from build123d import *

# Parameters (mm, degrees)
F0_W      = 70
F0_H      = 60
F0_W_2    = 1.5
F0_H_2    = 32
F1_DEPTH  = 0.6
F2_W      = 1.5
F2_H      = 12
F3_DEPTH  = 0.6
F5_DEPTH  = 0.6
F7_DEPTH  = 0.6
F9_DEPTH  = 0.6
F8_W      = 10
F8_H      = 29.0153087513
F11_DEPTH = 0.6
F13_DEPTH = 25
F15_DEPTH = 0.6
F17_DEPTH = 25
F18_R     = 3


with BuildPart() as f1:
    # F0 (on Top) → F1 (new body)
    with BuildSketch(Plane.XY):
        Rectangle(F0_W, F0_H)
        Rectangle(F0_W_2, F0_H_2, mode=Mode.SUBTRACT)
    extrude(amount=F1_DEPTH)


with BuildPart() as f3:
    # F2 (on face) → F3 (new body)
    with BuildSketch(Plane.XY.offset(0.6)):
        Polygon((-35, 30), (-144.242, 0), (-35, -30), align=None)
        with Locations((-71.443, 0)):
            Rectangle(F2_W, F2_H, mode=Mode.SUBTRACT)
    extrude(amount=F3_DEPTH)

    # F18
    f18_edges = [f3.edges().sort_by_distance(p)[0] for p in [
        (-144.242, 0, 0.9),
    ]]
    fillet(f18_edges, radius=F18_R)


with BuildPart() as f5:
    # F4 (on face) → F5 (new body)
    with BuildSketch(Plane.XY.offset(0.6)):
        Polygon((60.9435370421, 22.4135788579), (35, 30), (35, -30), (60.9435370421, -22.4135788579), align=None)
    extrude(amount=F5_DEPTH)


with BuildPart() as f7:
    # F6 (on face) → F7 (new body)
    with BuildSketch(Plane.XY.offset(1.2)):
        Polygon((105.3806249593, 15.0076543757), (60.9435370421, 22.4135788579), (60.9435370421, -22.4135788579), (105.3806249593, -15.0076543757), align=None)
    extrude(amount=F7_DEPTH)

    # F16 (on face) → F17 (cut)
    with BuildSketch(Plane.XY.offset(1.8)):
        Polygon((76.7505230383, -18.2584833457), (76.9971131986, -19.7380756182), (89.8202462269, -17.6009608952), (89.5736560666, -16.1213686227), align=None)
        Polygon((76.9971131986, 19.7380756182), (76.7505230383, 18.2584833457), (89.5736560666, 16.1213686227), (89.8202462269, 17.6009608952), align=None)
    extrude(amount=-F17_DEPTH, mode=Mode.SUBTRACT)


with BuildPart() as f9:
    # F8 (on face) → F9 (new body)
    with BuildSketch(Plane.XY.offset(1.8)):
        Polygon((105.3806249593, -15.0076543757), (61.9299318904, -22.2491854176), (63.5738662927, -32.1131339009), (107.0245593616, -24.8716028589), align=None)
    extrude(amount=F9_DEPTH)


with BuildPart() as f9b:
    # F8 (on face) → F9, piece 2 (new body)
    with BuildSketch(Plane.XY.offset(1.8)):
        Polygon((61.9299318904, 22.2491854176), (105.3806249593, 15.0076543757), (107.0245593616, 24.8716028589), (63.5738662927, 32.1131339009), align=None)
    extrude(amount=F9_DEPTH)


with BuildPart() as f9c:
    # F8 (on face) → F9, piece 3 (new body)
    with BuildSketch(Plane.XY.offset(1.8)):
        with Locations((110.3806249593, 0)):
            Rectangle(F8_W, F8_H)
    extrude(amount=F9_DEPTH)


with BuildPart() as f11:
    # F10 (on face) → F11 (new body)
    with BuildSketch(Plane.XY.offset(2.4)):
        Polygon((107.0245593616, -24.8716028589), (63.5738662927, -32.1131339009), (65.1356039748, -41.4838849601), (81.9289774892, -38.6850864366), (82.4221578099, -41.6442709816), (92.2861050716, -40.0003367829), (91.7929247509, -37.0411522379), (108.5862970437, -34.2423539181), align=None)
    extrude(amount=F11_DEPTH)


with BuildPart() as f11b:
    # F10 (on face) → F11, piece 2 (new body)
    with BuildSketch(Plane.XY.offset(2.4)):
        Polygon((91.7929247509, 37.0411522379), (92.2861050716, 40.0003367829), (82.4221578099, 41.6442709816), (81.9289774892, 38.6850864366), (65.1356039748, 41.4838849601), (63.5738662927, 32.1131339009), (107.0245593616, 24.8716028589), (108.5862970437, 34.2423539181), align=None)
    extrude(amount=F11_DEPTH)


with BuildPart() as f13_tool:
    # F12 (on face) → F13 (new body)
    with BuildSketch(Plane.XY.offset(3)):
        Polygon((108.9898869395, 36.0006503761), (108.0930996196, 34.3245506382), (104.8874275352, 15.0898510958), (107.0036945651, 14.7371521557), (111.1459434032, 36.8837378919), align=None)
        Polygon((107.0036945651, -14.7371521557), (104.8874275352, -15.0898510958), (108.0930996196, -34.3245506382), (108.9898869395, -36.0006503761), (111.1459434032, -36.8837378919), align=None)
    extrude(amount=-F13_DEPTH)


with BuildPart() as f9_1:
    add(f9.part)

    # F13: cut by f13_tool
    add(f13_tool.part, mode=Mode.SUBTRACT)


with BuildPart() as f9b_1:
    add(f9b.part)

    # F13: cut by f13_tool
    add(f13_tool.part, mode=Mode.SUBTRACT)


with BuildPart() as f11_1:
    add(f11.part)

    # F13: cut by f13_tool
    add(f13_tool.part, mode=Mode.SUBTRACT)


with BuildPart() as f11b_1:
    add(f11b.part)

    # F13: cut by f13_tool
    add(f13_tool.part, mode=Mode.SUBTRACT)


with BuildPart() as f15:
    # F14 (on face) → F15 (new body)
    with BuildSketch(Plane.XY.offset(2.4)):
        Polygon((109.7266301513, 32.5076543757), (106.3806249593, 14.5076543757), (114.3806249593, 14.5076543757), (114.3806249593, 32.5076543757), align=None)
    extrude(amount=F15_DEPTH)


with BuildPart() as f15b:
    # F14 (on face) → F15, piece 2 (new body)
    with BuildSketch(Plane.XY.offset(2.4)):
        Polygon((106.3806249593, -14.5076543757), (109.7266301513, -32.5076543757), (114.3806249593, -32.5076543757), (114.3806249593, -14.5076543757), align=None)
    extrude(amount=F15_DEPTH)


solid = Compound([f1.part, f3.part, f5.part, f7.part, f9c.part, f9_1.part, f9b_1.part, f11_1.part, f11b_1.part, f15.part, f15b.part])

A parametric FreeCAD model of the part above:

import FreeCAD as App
import Part
import Sketcher

V = App.Vector
Q = App.Units.Quantity


def edges_at(feature, points):
    """Names of the edges that pass closest to the given points."""
    edges = feature.Shape.Edges
    near = lambda p: min(range(len(edges)), key=lambda i: edges[i].distToShape(Part.Vertex(*p))[0])
    return sorted({f"Edge{near(p) + 1}" for p in points})

doc = App.newDocument("Part")
params = doc.addObject("Spreadsheet::Sheet", "Params")
for row, (alias, value) in enumerate([
    ("sketch1_width", "70 mm"),
    ("sketch1_height", "60 mm"),
    ("sketch1_height2", "32 mm"),
    ("sketch1_width2", "1.5 mm"),
    ("pad1_length", "0.6 mm"),
    ("sketch2_height", "60 mm"),
    ("sketch2_height2", "12 mm"),
    ("sketch2_width", "1.5 mm"),
    ("pad2_length", "0.6 mm"),
    ("fillet_radius", "3 mm"),
    ("sketch3_height", "60 mm"),
    ("sketch3_length", "27.03 mm"),
    ("pad3_length", "0.6 mm"),
    ("sketch4_length", "45.05 mm"),
    ("pad4_length", "0.6 mm"),
    ("sketch5_length", "13 mm"),
    ("sketch5_length2", "1.5 mm"),
    ("pocket1_length", "25 mm"),
    ("sketch6_length", "10 mm"),
    ("sketch6_length2", "44.05 mm"),
    ("pad5_length", "0.6 mm"),
    ("sketch7_length", "10 mm"),
    ("sketch7_length2", "44.05 mm"),
    ("pad6_length", "0.6 mm"),
    ("sketch8_width", "10 mm"),
    ("pad7_length", "0.6 mm"),
    ("sketch9_length", "3 mm"),
    ("sketch9_length2", "9.999999 mm"),
    ("sketch9_length3", "9.5 mm"),
    ("sketch9_length4", "44.05 mm"),
    ("pad8_length", "0.6 mm"),
    ("sketch10_length", "3 mm"),
    ("sketch10_length2", "9.999999 mm"),
    ("sketch10_length3", "9.5 mm"),
    ("sketch10_length4", "44.05 mm"),
    ("pad9_length", "0.6 mm"),
    ("sketch11_length", "19.5 mm"),
    ("pad10_length", "25 mm"),
    ("sketch12_width", "8 mm"),
    ("sketch12_height", "18 mm"),
    ("pad11_length", "0.6 mm"),
    ("sketch13_width", "8 mm"),
    ("sketch13_height", "18 mm"),
    ("pad12_length", "0.6 mm"),
], start=1):
    params.set(f"A{row}", alias)
    params.set(f"B{row}", "=" + value)
    params.setAlias(f"B{row}", alias)

body = doc.addObject("PartDesign::Body", "Body")

# Sketch on XY plane
sketch1 = body.newObject("Sketcher::SketchObject", "Sketch")
sketch1.AttachmentSupport = (doc.getObject("XY_Plane"), [""])
sketch1.MapMode = "FlatFace"
sketch1.addGeometry(Part.LineSegment(V(-35, 30, 0), V(-35, -30, 0)), False)
sketch1.addGeometry(Part.LineSegment(V(-35, -30, 0), V(35, -30, 0)), False)
sketch1.addGeometry(Part.LineSegment(V(35, -30, 0), V(35, 30, 0)), False)
sketch1.addGeometry(Part.LineSegment(V(35, 30, 0), V(-35, 30, 0)), False)
sketch1.addGeometry(Part.LineSegment(V(0.75, -16, 0), V(-0.75, -16, 0)), False)
sketch1.addGeometry(Part.LineSegment(V(-0.75, -16, 0), V(-0.75, 16, 0)), False)
sketch1.addGeometry(Part.LineSegment(V(-0.75, 16, 0), V(0.75, 16, 0)), False)
sketch1.addGeometry(Part.LineSegment(V(0.75, 16, 0), V(0.75, -16, 0)), False)
sketch1.addConstraint(Sketcher.Constraint("Coincident", 0, 2, 1, 1))
sketch1.addConstraint(Sketcher.Constraint("Coincident", 1, 2, 2, 1))
sketch1.addConstraint(Sketcher.Constraint("Coincident", 2, 2, 3, 1))
sketch1.addConstraint(Sketcher.Constraint("Coincident", 3, 2, 0, 1))
sketch1.addConstraint(Sketcher.Constraint("Coincident", 4, 2, 5, 1))
sketch1.addConstraint(Sketcher.Constraint("Coincident", 5, 2, 6, 1))
sketch1.addConstraint(Sketcher.Constraint("Coincident", 6, 2, 7, 1))
sketch1.addConstraint(Sketcher.Constraint("Coincident", 7, 2, 4, 1))
sketch1.addConstraint(Sketcher.Constraint("Vertical", 0))
sketch1.addConstraint(Sketcher.Constraint("Horizontal", 1))
sketch1.addConstraint(Sketcher.Constraint("Vertical", 2))
sketch1.addConstraint(Sketcher.Constraint("Horizontal", 3))
sketch1.addConstraint(Sketcher.Constraint("Horizontal", 4))
sketch1.addConstraint(Sketcher.Constraint("Vertical", 5))
sketch1.addConstraint(Sketcher.Constraint("Horizontal", 6))
sketch1.addConstraint(Sketcher.Constraint("Vertical", 7))
sketch1.addConstraint(Sketcher.Constraint("Symmetric", 0, 2, 2, 2, -1, 1))
sketch1.addConstraint(Sketcher.Constraint("Symmetric", 4, 2, 6, 2, -1, 1))
sketch1.addConstraint(Sketcher.Constraint("DistanceX", 1, 1, 1, 2, Q("70 mm")))
sketch1.addConstraint(Sketcher.Constraint("DistanceY", 0, 2, 0, 1, Q("60 mm")))
sketch1.addConstraint(Sketcher.Constraint("DistanceY", 5, 1, 5, 2, Q("32 mm")))
sketch1.addConstraint(Sketcher.Constraint("DistanceX", 4, 2, 4, 1, Q("1.5 mm")))
sketch1.setExpression("Constraints[18]", "Params.sketch1_width")
sketch1.setExpression("Constraints[19]", "Params.sketch1_height")
sketch1.setExpression("Constraints[20]", "Params.sketch1_height2")
sketch1.setExpression("Constraints[21]", "Params.sketch1_width2")
pad1 = body.newObject("PartDesign::Pad", "Pad")
pad1.Profile = sketch1
pad1.setExpression("Length", "Params.pad1_length")
body2 = doc.addObject("PartDesign::Body", "Body001")

# Sketch on XY plane
sketch2 = body2.newObject("Sketcher::SketchObject", "Sketch001")
sketch2.AttachmentSupport = (doc.getObject("XY_Plane001"), [""])
sketch2.MapMode = "FlatFace"
sketch2.AttachmentOffset = App.Placement(V(0, 0, 0.6), App.Rotation())
sketch2.addGeometry(Part.LineSegment(V(-35, 30, 0), V(-144.242, 0, 0)), False)
sketch2.addGeometry(Part.LineSegment(V(-144.242, 0, 0), V(-35, -30, 0)), False)
sketch2.addGeometry(Part.LineSegment(V(-35, -30, 0), V(-35, 30, 0)), False)
sketch2.addGeometry(Part.LineSegment(V(-70.693, -6, 0), V(-72.193, -6, 0)), False)
sketch2.addGeometry(Part.LineSegment(V(-72.193, -6, 0), V(-72.193, 6, 0)), False)
sketch2.addGeometry(Part.LineSegment(V(-72.193, 6, 0), V(-70.693, 6, 0)), False)
sketch2.addGeometry(Part.LineSegment(V(-70.693, 6, 0), V(-70.693, -6, 0)), False)
sketch2.addConstraint(Sketcher.Constraint("Coincident", 0, 2, 1, 1))
sketch2.addConstraint(Sketcher.Constraint("Coincident", 1, 2, 2, 1))
sketch2.addConstraint(Sketcher.Constraint("Coincident", 2, 2, 0, 1))
sketch2.addConstraint(Sketcher.Constraint("Coincident", 3, 2, 4, 1))
sketch2.addConstraint(Sketcher.Constraint("Coincident", 4, 2, 5, 1))
sketch2.addConstraint(Sketcher.Constraint("Coincident", 5, 2, 6, 1))
sketch2.addConstraint(Sketcher.Constraint("Coincident", 6, 2, 3, 1))
sketch2.addConstraint(Sketcher.Constraint("Vertical", 2))
sketch2.addConstraint(Sketcher.Constraint("Horizontal", 3))
sketch2.addConstraint(Sketcher.Constraint("Vertical", 4))
sketch2.addConstraint(Sketcher.Constraint("Horizontal", 5))
sketch2.addConstraint(Sketcher.Constraint("Vertical", 6))
sketch2.addConstraint(Sketcher.Constraint("PointOnObject", 0, 2, -1))
sketch2.addConstraint(Sketcher.Constraint("Equal", 0, 1))
sketch2.addConstraint(Sketcher.Constraint("DistanceY", 2, 1, 2, 2, Q("60 mm")))
sketch2.addConstraint(Sketcher.Constraint("DistanceY", 4, 1, 4, 2, Q("12 mm")))
sketch2.addConstraint(Sketcher.Constraint("DistanceX", 3, 2, 3, 1, Q("1.5 mm")))
sketch2.addConstraint(Sketcher.Constraint("DistanceX", 1, 2, -1, 1, Q("35 mm")))
sketch2.addConstraint(Sketcher.Constraint("DistanceY", 3, 2, -1, 1, Q("6 mm")))
sketch2.addConstraint(Sketcher.Constraint("DistanceX", 0, 2, -1, 1, Q("144.242 mm")))
sketch2.addConstraint(Sketcher.Constraint("DistanceX", 3, 2, -1, 1, Q("72.193 mm")))
sketch2.setExpression("Constraints[14]", "Params.sketch2_height")
sketch2.setExpression("Constraints[15]", "Params.sketch2_height2")
sketch2.setExpression("Constraints[16]", "Params.sketch2_width")
pad2 = body2.newObject("PartDesign::Pad", "Pad001")
pad2.Profile = sketch2
pad2.setExpression("Length", "Params.pad2_length")
doc.recompute()

fillet = body2.newObject("PartDesign::Fillet", "Fillet")
fillet.Base = (pad2, edges_at(pad2, [(-144.242, 0, 0.9)]))
fillet.setExpression("Radius", "Params.fillet_radius")
body3 = doc.addObject("PartDesign::Body", "Body002")

# Sketch on XY plane
sketch3 = body3.newObject("Sketcher::SketchObject", "Sketch002")
sketch3.AttachmentSupport = (doc.getObject("XY_Plane002"), [""])
sketch3.MapMode = "FlatFace"
sketch3.AttachmentOffset = App.Placement(V(0, 0, 0.6), App.Rotation())
sketch3.addGeometry(Part.LineSegment(V(60.943537, 22.413579, 0), V(35, 30, 0)), False)
sketch3.addGeometry(Part.LineSegment(V(35, 30, 0), V(35, -30, 0)), False)
sketch3.addGeometry(Part.LineSegment(V(35, -30, 0), V(60.943537, -22.413579, 0)), False)
sketch3.addGeometry(Part.LineSegment(V(60.943537, -22.413579, 0), V(60.943537, 22.413579, 0)), False)
sketch3.addConstraint(Sketcher.Constraint("Coincident", 0, 2, 1, 1))
sketch3.addConstraint(Sketcher.Constraint("Coincident", 1, 2, 2, 1))
sketch3.addConstraint(Sketcher.Constraint("Coincident", 2, 2, 3, 1))
sketch3.addConstraint(Sketcher.Constraint("Coincident", 3, 2, 0, 1))
sketch3.addConstraint(Sketcher.Constraint("Vertical", 1))
sketch3.addConstraint(Sketcher.Constraint("Vertical", 3))
sketch3.addConstraint(Sketcher.Constraint("Equal", 0, 2))
sketch3.addConstraint(Sketcher.Constraint("DistanceY", 1, 2, 1, 1, Q("60 mm")))
sketch3.addConstraint(Sketcher.Constraint("DistanceX", -1, 1, 0, 2, Q("35 mm")))
sketch3.addConstraint(Sketcher.Constraint("DistanceY", -1, 1, 0, 2, Q("30 mm")))
sketch3.addConstraint(Sketcher.Constraint("Angle", 0, Q("163.7 deg")))
sketch3.addConstraint(Sketcher.Constraint("Distance", 0, Q("27.03 mm")))
sketch3.setExpression("Constraints[7]", "Params.sketch3_height")
sketch3.setExpression("Constraints[11]", "Params.sketch3_length")
pad3 = body3.newObject("PartDesign::Pad", "Pad002")
pad3.Profile = sketch3
pad3.setExpression("Length", "Params.pad3_length")
body4 = doc.addObject("PartDesign::Body", "Body003")

# Sketch on XY plane
sketch4 = body4.newObject("Sketcher::SketchObject", "Sketch003")
sketch4.AttachmentSupport = (doc.getObject("XY_Plane003"), [""])
sketch4.MapMode = "FlatFace"
sketch4.AttachmentOffset = App.Placement(V(0, 0, 1.2), App.Rotation())
sketch4.addGeometry(Part.LineSegment(V(105.380625, 15.007654, 0), V(60.943537, 22.413579, 0)), False)
sketch4.addGeometry(Part.LineSegment(V(60.943537, 22.413579, 0), V(60.943537, -22.413579, 0)), False)
sketch4.addGeometry(Part.LineSegment(V(60.943537, -22.413579, 0), V(105.380625, -15.007654, 0)), False)
sketch4.addGeometry(Part.LineSegment(V(105.380625, -15.007654, 0), V(105.380625, 15.007654, 0)), False)
sketch4.addConstraint(Sketcher.Constraint("Coincident", 0, 2, 1, 1))
sketch4.addConstraint(Sketcher.Constraint("Coincident", 1, 2, 2, 1))
sketch4.addConstraint(Sketcher.Constraint("Coincident", 2, 2, 3, 1))
sketch4.addConstraint(Sketcher.Constraint("Coincident", 3, 2, 0, 1))
sketch4.addConstraint(Sketcher.Constraint("Vertical", 1))
sketch4.addConstraint(Sketcher.Constraint("Vertical", 3))
sketch4.addConstraint(Sketcher.Constraint("Equal", 0, 2))
sketch4.addConstraint(Sketcher.Constraint("Distance", 0, Q("45.05 mm")))
sketch4.addConstraint(Sketcher.Constraint("DistanceY", 3, 1, 3, 2, Q("30.015309 mm")))
sketch4.addConstraint(Sketcher.Constraint("DistanceY", 1, 2, 1, 1, Q("44.827158 mm")))
sketch4.addConstraint(Sketcher.Constraint("DistanceY", -1, 1, 0, 2, Q("22.413579 mm")))
sketch4.addConstraint(Sketcher.Constraint("DistanceX", -1, 1, 0, 2, Q("60.943537 mm")))
sketch4.setExpression("Constraints[7]", "Params.sketch4_length")
pad4 = body4.newObject("PartDesign::Pad", "Pad003")
pad4.Profile = sketch4
pad4.setExpression("Length", "Params.pad4_length")

# Sketch on XY plane
sketch5 = body4.newObject("Sketcher::SketchObject", "Sketch004")
sketch5.AttachmentSupport = (doc.getObject("XY_Plane003"), [""])
sketch5.MapMode = "FlatFace"
sketch5.AttachmentOffset = App.Placement(V(0, 0, 1.8), App.Rotation())
sketch5.addGeometry(Part.LineSegment(V(76.750523, -18.258483, 0), V(76.997113, -19.738076, 0)), False)
sketch5.addGeometry(Part.LineSegment(V(76.997113, -19.738076, 0), V(89.820246, -17.600961, 0)), False)
sketch5.addGeometry(Part.LineSegment(V(89.820246, -17.600961, 0), V(89.573656, -16.121369, 0)), False)
sketch5.addGeometry(Part.LineSegment(V(89.573656, -16.121369, 0), V(76.750523, -18.258483, 0)), False)
sketch5.addGeometry(Part.LineSegment(V(76.997113, 19.738076, 0), V(76.750523, 18.258483, 0)), False)
sketch5.addGeometry(Part.LineSegment(V(76.750523, 18.258483, 0), V(89.573656, 16.121369, 0)), False)
sketch5.addGeometry(Part.LineSegment(V(89.573656, 16.121369, 0), V(89.820246, 17.600961, 0)), False)
sketch5.addGeometry(Part.LineSegment(V(89.820246, 17.600961, 0), V(76.997113, 19.738076, 0)), False)
sketch5.addConstraint(Sketcher.Constraint("Coincident", 0, 2, 1, 1))
sketch5.addConstraint(Sketcher.Constraint("Coincident", 1, 2, 2, 1))
sketch5.addConstraint(Sketcher.Constraint("Coincident", 2, 2, 3, 1))
sketch5.addConstraint(Sketcher.Constraint("Coincident", 3, 2, 0, 1))
sketch5.addConstraint(Sketcher.Constraint("Coincident", 4, 2, 5, 1))
sketch5.addConstraint(Sketcher.Constraint("Coincident", 5, 2, 6, 1))
sketch5.addConstraint(Sketcher.Constraint("Coincident", 6, 2, 7, 1))
sketch5.addConstraint(Sketcher.Constraint("Coincident", 7, 2, 4, 1))
sketch5.addConstraint(Sketcher.Constraint("Symmetric", 3, 2, 4, 2, -1))
sketch5.addConstraint(Sketcher.Constraint("Symmetric", 2, 2, 5, 2, -1))
sketch5.addConstraint(Sketcher.Constraint("Symmetric", 1, 2, 6, 2, -1))
sketch5.addConstraint(Sketcher.Constraint("Symmetric", 0, 2, 7, 2, -1))
sketch5.addConstraint(Sketcher.Constraint("Perpendicular", 0, 1))
sketch5.addConstraint(Sketcher.Constraint("Perpendicular", 1, 2))
sketch5.addConstraint(Sketcher.Constraint("Perpendicular", 2, 3))
sketch5.addConstraint(Sketcher.Constraint("Distance", 1, Q("13 mm")))
sketch5.addConstraint(Sketcher.Constraint("Distance", 0, Q("1.5 mm")))
sketch5.addConstraint(Sketcher.Constraint("DistanceY", 1, 2, -1, 1, Q("17.600961 mm")))
sketch5.addConstraint(Sketcher.Constraint("DistanceY", 2, 2, -1, 1, Q("16.121369 mm")))
sketch5.addConstraint(Sketcher.Constraint("DistanceX", -1, 1, 0, 2, Q("76.997113 mm")))
sketch5.setExpression("Constraints[15]", "Params.sketch5_length")
sketch5.setExpression("Constraints[16]", "Params.sketch5_length2")
pocket1 = body4.newObject("PartDesign::Pocket", "Pocket")
pocket1.Profile = sketch5
pocket1.setExpression("Length", "Params.pocket1_length")
body5 = doc.addObject("PartDesign::Body", "Body004")

# Sketch on XY plane
sketch6 = body5.newObject("Sketcher::SketchObject", "Sketch005")
sketch6.AttachmentSupport = (doc.getObject("XY_Plane004"), [""])
sketch6.MapMode = "FlatFace"
sketch6.AttachmentOffset = App.Placement(V(0, 0, 1.8), App.Rotation())
sketch6.addGeometry(Part.LineSegment(V(105.380625, -15.007654, 0), V(61.929932, -22.249185, 0)), False)
sketch6.addGeometry(Part.LineSegment(V(61.929932, -22.249185, 0), V(63.573866, -32.113134, 0)), False)
sketch6.addGeometry(Part.LineSegment(V(63.573866, -32.113134, 0), V(107.024559, -24.871603, 0)), False)
sketch6.addGeometry(Part.LineSegment(V(107.024559, -24.871603, 0), V(105.380625, -15.007654, 0)), False)
sketch6.addConstraint(Sketcher.Constraint("Coincident", 0, 2, 1, 1))
sketch6.addConstraint(Sketcher.Constraint("Coincident", 1, 2, 2, 1))
sketch6.addConstraint(Sketcher.Constraint("Coincident", 2, 2, 3, 1))
sketch6.addConstraint(Sketcher.Constraint("Coincident", 3, 2, 0, 1))
sketch6.addConstraint(Sketcher.Constraint("Perpendicular", 0, 1))
sketch6.addConstraint(Sketcher.Constraint("Perpendicular", 1, 2))
sketch6.addConstraint(Sketcher.Constraint("Perpendicular", 2, 3))
sketch6.addConstraint(Sketcher.Constraint("Distance", 1, Q("10 mm")))
sketch6.addConstraint(Sketcher.Constraint("Distance", 0, Q("44.05 mm")))
sketch6.addConstraint(Sketcher.Constraint("DistanceX", -1, 1, 0, 2, Q("61.929932 mm")))
sketch6.addConstraint(Sketcher.Constraint("DistanceX", -1, 1, 2, 2, Q("107.024559 mm")))
sketch6.addConstraint(Sketcher.Constraint("DistanceY", 0, 2, -1, 1, Q("22.249185 mm")))
sketch6.setExpression("Constraints[7]", "Params.sketch6_length")
sketch6.setExpression("Constraints[8]", "Params.sketch6_length2")
pad5 = body5.newObject("PartDesign::Pad", "Pad004")
pad5.Profile = sketch6
pad5.setExpression("Length", "Params.pad5_length")
body6 = doc.addObject("PartDesign::Body", "Body005")

# Sketch on XY plane
sketch7 = body6.newObject("Sketcher::SketchObject", "Sketch006")
sketch7.AttachmentSupport = (doc.getObject("XY_Plane005"), [""])
sketch7.MapMode = "FlatFace"
sketch7.AttachmentOffset = App.Placement(V(0, 0, 1.8), App.Rotation())
sketch7.addGeometry(Part.LineSegment(V(61.929932, 22.249185, 0), V(105.380625, 15.007654, 0)), False)
sketch7.addGeometry(Part.LineSegment(V(105.380625, 15.007654, 0), V(107.024559, 24.871603, 0)), False)
sketch7.addGeometry(Part.LineSegment(V(107.024559, 24.871603, 0), V(63.573866, 32.113134, 0)), False)
sketch7.addGeometry(Part.LineSegment(V(63.573866, 32.113134, 0), V(61.929932, 22.249185, 0)), False)
sketch7.addConstraint(Sketcher.Constraint("Coincident", 0, 2, 1, 1))
sketch7.addConstraint(Sketcher.Constraint("Coincident", 1, 2, 2, 1))
sketch7.addConstraint(Sketcher.Constraint("Coincident", 2, 2, 3, 1))
sketch7.addConstraint(Sketcher.Constraint("Coincident", 3, 2, 0, 1))
sketch7.addConstraint(Sketcher.Constraint("Perpendicular", 0, 1))
sketch7.addConstraint(Sketcher.Constraint("Perpendicular", 1, 2))
sketch7.addConstraint(Sketcher.Constraint("Perpendicular", 2, 3))
sketch7.addConstraint(Sketcher.Constraint("Distance", 1, Q("10 mm")))
sketch7.addConstraint(Sketcher.Constraint("Distance", 0, Q("44.05 mm")))
sketch7.addConstraint(Sketcher.Constraint("DistanceX", -1, 1, 1, 2, Q("107.024559 mm")))
sketch7.addConstraint(Sketcher.Constraint("DistanceX", -1, 1, 3, 2, Q("61.929932 mm")))
sketch7.addConstraint(Sketcher.Constraint("DistanceY", -1, 1, 0, 2, Q("15.007654 mm")))
sketch7.setExpression("Constraints[7]", "Params.sketch7_length")
sketch7.setExpression("Constraints[8]", "Params.sketch7_length2")
pad6 = body6.newObject("PartDesign::Pad", "Pad005")
pad6.Profile = sketch7
pad6.setExpression("Length", "Params.pad6_length")
body7 = doc.addObject("PartDesign::Body", "Body006")

# Sketch on XY plane
sketch8 = body7.newObject("Sketcher::SketchObject", "Sketch007")
sketch8.AttachmentSupport = (doc.getObject("XY_Plane006"), [""])
sketch8.MapMode = "FlatFace"
sketch8.AttachmentOffset = App.Placement(V(0, 0, 1.8), App.Rotation())
sketch8.addGeometry(Part.LineSegment(V(105.380625, 14.507654, 0), V(105.380625, -14.507654, 0)), False)
sketch8.addGeometry(Part.LineSegment(V(105.380625, -14.507654, 0), V(115.380625, -14.507654, 0)), False)
sketch8.addGeometry(Part.LineSegment(V(115.380625, -14.507654, 0), V(115.380625, 14.507654, 0)), False)
sketch8.addGeometry(Part.LineSegment(V(115.380625, 14.507654, 0), V(105.380625, 14.507654, 0)), False)
sketch8.addConstraint(Sketcher.Constraint("Coincident", 0, 2, 1, 1))
sketch8.addConstraint(Sketcher.Constraint("Coincident", 1, 2, 2, 1))
sketch8.addConstraint(Sketcher.Constraint("Coincident", 2, 2, 3, 1))
sketch8.addConstraint(Sketcher.Constraint("Coincident", 3, 2, 0, 1))
sketch8.addConstraint(Sketcher.Constraint("Vertical", 0))
sketch8.addConstraint(Sketcher.Constraint("Horizontal", 1))
sketch8.addConstraint(Sketcher.Constraint("Vertical", 2))
sketch8.addConstraint(Sketcher.Constraint("Horizontal", 3))
sketch8.addConstraint(Sketcher.Constraint("DistanceX", 1, 1, 1, 2, Q("10 mm")))
sketch8.addConstraint(Sketcher.Constraint("DistanceY", 0, 2, 0, 1, Q("29.015309 mm")))
sketch8.addConstraint(Sketcher.Constraint("DistanceX", -1, 1, 0, 2, Q("105.380625 mm")))
sketch8.addConstraint(Sketcher.Constraint("DistanceY", 0, 2, -1, 1, Q("14.507654 mm")))
sketch8.setExpression("Constraints[8]", "Params.sketch8_width")
pad7 = body7.newObject("PartDesign::Pad", "Pad006")
pad7.Profile = sketch8
pad7.setExpression("Length", "Params.pad7_length")
body8 = doc.addObject("PartDesign::Body", "Body007")

# Sketch on XY plane
sketch9 = body8.newObject("Sketcher::SketchObject", "Sketch008")
sketch9.AttachmentSupport = (doc.getObject("XY_Plane007"), [""])
sketch9.MapMode = "FlatFace"
sketch9.AttachmentOffset = App.Placement(V(0, 0, 2.4), App.Rotation())
sketch9.addGeometry(Part.LineSegment(V(107.024559, -24.871603, 0), V(63.573866, -32.113134, 0)), False)
sketch9.addGeometry(Part.LineSegment(V(63.573866, -32.113134, 0), V(65.135604, -41.483885, 0)), False)
sketch9.addGeometry(Part.LineSegment(V(65.135604, -41.483885, 0), V(81.928977, -38.685086, 0)), False)
sketch9.addGeometry(Part.LineSegment(V(81.928977, -38.685086, 0), V(82.422158, -41.644271, 0)), False)
sketch9.addGeometry(Part.LineSegment(V(82.422158, -41.644271, 0), V(92.286105, -40.000337, 0)), False)
sketch9.addGeometry(Part.LineSegment(V(92.286105, -40.000337, 0), V(91.792925, -37.041152, 0)), False)
sketch9.addGeometry(Part.LineSegment(V(91.792925, -37.041152, 0), V(108.586297, -34.242354, 0)), False)
sketch9.addGeometry(Part.LineSegment(V(108.586297, -34.242354, 0), V(107.024559, -24.871603, 0)), False)
sketch9.addConstraint(Sketcher.Constraint("Coincident", 0, 2, 1, 1))
sketch9.addConstraint(Sketcher.Constraint("Coincident", 1, 2, 2, 1))
sketch9.addConstraint(Sketcher.Constraint("Coincident", 2, 2, 3, 1))
sketch9.addConstraint(Sketcher.Constraint("Coincident", 3, 2, 4, 1))
sketch9.addConstraint(Sketcher.Constraint("Coincident", 4, 2, 5, 1))
sketch9.addConstraint(Sketcher.Constraint("Coincident", 5, 2, 6, 1))
sketch9.addConstraint(Sketcher.Constraint("Coincident", 6, 2, 7, 1))
sketch9.addConstraint(Sketcher.Constraint("Coincident", 7, 2, 0, 1))
sketch9.addConstraint(Sketcher.Constraint("Perpendicular", 0, 1))
sketch9.addConstraint(Sketcher.Constraint("Perpendicular", 1, 2))
sketch9.addConstraint(Sketcher.Constraint("Perpendicular", 2, 3))
sketch9.addConstraint(Sketcher.Constraint("Perpendicular", 3, 4))
sketch9.addConstraint(Sketcher.Constraint("Perpendicular", 4, 5))
sketch9.addConstraint(Sketcher.Constraint("Perpendicular", 5, 6))
sketch9.addConstraint(Sketcher.Constraint("Perpendicular", 6, 7))
sketch9.addConstraint(Sketcher.Constraint("Equal", 3, 5))
sketch9.addConstraint(Sketcher.Constraint("Equal", 2, 6))
sketch9.addConstraint(Sketcher.Constraint("Distance", 3, Q("3 mm")))
sketch9.addConstraint(Sketcher.Constraint("Distance", 4, Q("9.999999 mm")))
sketch9.addConstraint(Sketcher.Constraint("Distance", 1, Q("9.5 mm")))
sketch9.addConstraint(Sketcher.Constraint("Distance", 0, Q("44.05 mm")))
sketch9.addConstraint(Sketcher.Constraint("DistanceY", 1, 2, 2, 2, Q("2.798799 mm")))
sketch9.addConstraint(Sketcher.Constraint("DistanceY", 3, 2, -1, 1, Q("41.644271 mm")))
sketch9.addConstraint(Sketcher.Constraint("DistanceX", -1, 1, 7, 2, Q("107.024559 mm")))
sketch9.setExpression("Constraints[17]", "Params.sketch9_length")
sketch9.setExpression("Constraints[18]", "Params.sketch9_length2")
sketch9.setExpression("Constraints[19]", "Params.sketch9_length3")
sketch9.setExpression("Constraints[20]", "Params.sketch9_length4")
pad8 = body8.newObject("PartDesign::Pad", "Pad007")
pad8.Profile = sketch9
pad8.setExpression("Length", "Params.pad8_length")
body9 = doc.addObject("PartDesign::Body", "Body008")

# Sketch on XY plane
sketch10 = body9.newObject("Sketcher::SketchObject", "Sketch009")
sketch10.AttachmentSupport = (doc.getObject("XY_Plane008"), [""])
sketch10.MapMode = "FlatFace"
sketch10.AttachmentOffset = App.Placement(V(0, 0, 2.4), App.Rotation())
sketch10.addGeometry(Part.LineSegment(V(91.792925, 37.041152, 0), V(92.286105, 40.000337, 0)), False)
sketch10.addGeometry(Part.LineSegment(V(92.286105, 40.000337, 0), V(82.422158, 41.644271, 0)), False)
sketch10.addGeometry(Part.LineSegment(V(82.422158, 41.644271, 0), V(81.928977, 38.685086, 0)), False)
sketch10.addGeometry(Part.LineSegment(V(81.928977, 38.685086, 0), V(65.135604, 41.483885, 0)), False)
sketch10.addGeometry(Part.LineSegment(V(65.135604, 41.483885, 0), V(63.573866, 32.113134, 0)), False)
sketch10.addGeometry(Part.LineSegment(V(63.573866, 32.113134, 0), V(107.024559, 24.871603, 0)), False)
sketch10.addGeometry(Part.LineSegment(V(107.024559, 24.871603, 0), V(108.586297, 34.242354, 0)), False)
sketch10.addGeometry(Part.LineSegment(V(108.586297, 34.242354, 0), V(91.792925, 37.041152, 0)), False)
sketch10.addConstraint(Sketcher.Constraint("Coincident", 0, 2, 1, 1))
sketch10.addConstraint(Sketcher.Constraint("Coincident", 1, 2, 2, 1))
sketch10.addConstraint(Sketcher.Constraint("Coincident", 2, 2, 3, 1))
sketch10.addConstraint(Sketcher.Constraint("Coincident", 3, 2, 4, 1))
sketch10.addConstraint(Sketcher.Constraint("Coincident", 4, 2, 5, 1))
sketch10.addConstraint(Sketcher.Constraint("Coincident", 5, 2, 6, 1))
sketch10.addConstraint(Sketcher.Constraint("Coincident", 6, 2, 7, 1))
sketch10.addConstraint(Sketcher.Constraint("Coincident", 7, 2, 0, 1))
sketch10.addConstraint(Sketcher.Constraint("Perpendicular", 0, 1))
sketch10.addConstraint(Sketcher.Constraint("Perpendicular", 1, 2))
sketch10.addConstraint(Sketcher.Constraint("Perpendicular", 2, 3))
sketch10.addConstraint(Sketcher.Constraint("Perpendicular", 3, 4))
sketch10.addConstraint(Sketcher.Constraint("Perpendicular", 4, 5))
sketch10.addConstraint(Sketcher.Constraint("Perpendicular", 5, 6))
sketch10.addConstraint(Sketcher.Constraint("Perpendicular", 6, 7))
sketch10.addConstraint(Sketcher.Constraint("Equal", 0, 2))
sketch10.addConstraint(Sketcher.Constraint("Equal", 3, 7))
sketch10.addConstraint(Sketcher.Constraint("Distance", 0, Q("3 mm")))
sketch10.addConstraint(Sketcher.Constraint("Distance", 1, Q("9.999999 mm")))
sketch10.addConstraint(Sketcher.Constraint("Distance", 4, Q("9.5 mm")))
sketch10.addConstraint(Sketcher.Constraint("Distance", 5, Q("44.05 mm")))
sketch10.addConstraint(Sketcher.Constraint("DistanceY", 2, 2, 3, 2, Q("2.798799 mm")))
sketch10.addConstraint(Sketcher.Constraint("DistanceY", -1, 1, 1, 2, Q("41.644271 mm")))
sketch10.addConstraint(Sketcher.Constraint("DistanceX", -1, 1, 5, 2, Q("107.024559 mm")))
sketch10.setExpression("Constraints[17]", "Params.sketch10_length")
sketch10.setExpression("Constraints[18]", "Params.sketch10_length2")
sketch10.setExpression("Constraints[19]", "Params.sketch10_length3")
sketch10.setExpression("Constraints[20]", "Params.sketch10_length4")
pad9 = body9.newObject("PartDesign::Pad", "Pad008")
pad9.Profile = sketch10
pad9.setExpression("Length", "Params.pad9_length")
body10 = doc.addObject("PartDesign::Body", "Body009")
body10.AllowCompound = True

# Sketch on XY plane
sketch11 = body10.newObject("Sketcher::SketchObject", "Sketch010")
sketch11.AttachmentSupport = (doc.getObject("XY_Plane009"), [""])
sketch11.MapMode = "FlatFace"
sketch11.AttachmentOffset = App.Placement(V(0, 0, 3), App.Rotation())
sketch11.addGeometry(Part.LineSegment(V(108.989887, 36.00065, 0), V(108.0931, 34.324551, 0)), False)
sketch11.addGeometry(Part.LineSegment(V(108.0931, 34.324551, 0), V(104.887428, 15.089851, 0)), False)
sketch11.addGeometry(Part.LineSegment(V(104.887428, 15.089851, 0), V(107.003695, 14.737152, 0)), False)
sketch11.addGeometry(Part.LineSegment(V(107.003695, 14.737152, 0), V(111.145943, 36.883738, 0)), False)
sketch11.addGeometry(Part.LineSegment(V(111.145943, 36.883738, 0), V(108.989887, 36.00065, 0)), False)
sketch11.addGeometry(Part.LineSegment(V(107.003695, -14.737152, 0), V(104.887428, -15.089851, 0)), False)
sketch11.addGeometry(Part.LineSegment(V(104.887428, -15.089851, 0), V(108.0931, -34.324551, 0)), False)
sketch11.addGeometry(Part.LineSegment(V(108.0931, -34.324551, 0), V(108.989887, -36.00065, 0)), False)
sketch11.addGeometry(Part.LineSegment(V(108.989887, -36.00065, 0), V(111.145943, -36.883738, 0)), False)
sketch11.addGeometry(Part.LineSegment(V(111.145943, -36.883738, 0), V(107.003695, -14.737152, 0)), False)
sketch11.addConstraint(Sketcher.Constraint("Coincident", 0, 2, 1, 1))
sketch11.addConstraint(Sketcher.Constraint("Coincident", 1, 2, 2, 1))
sketch11.addConstraint(Sketcher.Constraint("Coincident", 2, 2, 3, 1))
sketch11.addConstraint(Sketcher.Constraint("Coincident", 3, 2, 4, 1))
sketch11.addConstraint(Sketcher.Constraint("Coincident", 4, 2, 0, 1))
sketch11.addConstraint(Sketcher.Constraint("Coincident", 5, 2, 6, 1))
sketch11.addConstraint(Sketcher.Constraint("Coincident", 6, 2, 7, 1))
sketch11.addConstraint(Sketcher.Constraint("Coincident", 7, 2, 8, 1))
sketch11.addConstraint(Sketcher.Constraint("Coincident", 8, 2, 9, 1))
sketch11.addConstraint(Sketcher.Constraint("Coincident", 9, 2, 5, 1))
sketch11.addConstraint(Sketcher.Constraint("Symmetric", 1, 2, 5, 2, -1))
sketch11.addConstraint(Sketcher.Constraint("Symmetric", 0, 2, 6, 2, -1))
sketch11.addConstraint(Sketcher.Constraint("Symmetric", 4, 2, 7, 2, -1))
sketch11.addConstraint(Sketcher.Constraint("Symmetric", 3, 2, 8, 2, -1))
sketch11.addConstraint(Sketcher.Constraint("Symmetric", 2, 2, 9, 2, -1))
sketch11.addConstraint(Sketcher.Constraint("Perpendicular", 1, 2))
sketch11.addConstraint(Sketcher.Constraint("Distance", 1, Q("19.5 mm")))
sketch11.addConstraint(Sketcher.Constraint("DistanceX", -1, 1, 0, 2, Q("108.0931 mm")))
sketch11.addConstraint(Sketcher.Constraint("DistanceY", 1, 2, 0, 2, Q("19.2347 mm")))
sketch11.addConstraint(Sketcher.Constraint("DistanceY", 2, 2, 1, 2, Q("0.352699 mm")))
sketch11.addConstraint(Sketcher.Constraint("DistanceY", 0, 2, 4, 2, Q("1.6761 mm")))
sketch11.addConstraint(Sketcher.Constraint("DistanceY", 5, 2, 0, 2, Q("49.414402 mm")))
sketch11.addConstraint(Sketcher.Constraint("Distance", 0, Q("1.900931 mm")))
sketch11.addConstraint(Sketcher.Constraint("DistanceX", 2, 2, 3, 2, Q("4.142249 mm")))
sketch11.addConstraint(Sketcher.Constraint("DistanceY", 5, 2, 3, 2, Q("51.973589 mm")))
sketch11.setExpression("Constraints[16]", "Params.sketch11_length")
pad10 = body10.newObject("PartDesign::Pad", "Pad009")
pad10.Profile = sketch11
pad10.setExpression("Length", "Params.pad10_length")
pad10.Reversed = True
doc.recompute()

body11 = doc.addObject("PartDesign::Body", "Body010")
body11.BaseFeature = body10
boolean = body5.newObject("PartDesign::Boolean", "Boolean")
boolean.Type = "Cut"
boolean.addObjects([body11])
doc.recompute()

body12 = doc.addObject("PartDesign::Body", "Body011")
body12.BaseFeature = body10
boolean2 = body6.newObject("PartDesign::Boolean", "Boolean001")
boolean2.Type = "Cut"
boolean2.addObjects([body12])
doc.recompute()

body13 = doc.addObject("PartDesign::Body", "Body012")
body13.BaseFeature = body10
boolean3 = body8.newObject("PartDesign::Boolean", "Boolean002")
boolean3.Type = "Cut"
boolean3.addObjects([body13])
doc.recompute()

boolean4 = body9.newObject("PartDesign::Boolean", "Boolean003")
boolean4.Type = "Cut"
boolean4.addObjects([body10])
body14 = doc.addObject("PartDesign::Body", "Body013")

# Sketch on XY plane
sketch12 = body14.newObject("Sketcher::SketchObject", "Sketch011")
sketch12.AttachmentSupport = (doc.getObject("XY_Plane013"), [""])
sketch12.MapMode = "FlatFace"
sketch12.AttachmentOffset = App.Placement(V(0, 0, 2.4), App.Rotation())
sketch12.addGeometry(Part.LineSegment(V(109.72663, 32.507654, 0), V(106.380625, 14.507654, 0)), False)
sketch12.addGeometry(Part.LineSegment(V(106.380625, 14.507654, 0), V(114.380625, 14.507654, 0)), False)
sketch12.addGeometry(Part.LineSegment(V(114.380625, 14.507654, 0), V(114.380625, 32.507654, 0)), False)
sketch12.addGeometry(Part.LineSegment(V(114.380625, 32.507654, 0), V(109.72663, 32.507654, 0)), False)
sketch12.addConstraint(Sketcher.Constraint("Coincident", 0, 2, 1, 1))
sketch12.addConstraint(Sketcher.Constraint("Coincident", 1, 2, 2, 1))
sketch12.addConstraint(Sketcher.Constraint("Coincident", 2, 2, 3, 1))
sketch12.addConstraint(Sketcher.Constraint("Coincident", 3, 2, 0, 1))
sketch12.addConstraint(Sketcher.Constraint("Horizontal", 1))
sketch12.addConstraint(Sketcher.Constraint("Vertical", 2))
sketch12.addConstraint(Sketcher.Constraint("Horizontal", 3))
sketch12.addConstraint(Sketcher.Constraint("DistanceX", 1, 1, 1, 2, Q("8 mm")))
sketch12.addConstraint(Sketcher.Constraint("DistanceY", 2, 1, 2, 2, Q("18 mm")))
sketch12.addConstraint(Sketcher.Constraint("Distance", 0, Q("18.308352 mm")))
sketch12.addConstraint(Sketcher.Constraint("DistanceX", -1, 1, 3, 2, Q("109.72663 mm")))
sketch12.addConstraint(Sketcher.Constraint("DistanceY", -1, 1, 0, 2, Q("14.507654 mm")))
sketch12.setExpression("Constraints[7]", "Params.sketch12_width")
sketch12.setExpression("Constraints[8]", "Params.sketch12_height")
pad11 = body14.newObject("PartDesign::Pad", "Pad010")
pad11.Profile = sketch12
pad11.setExpression("Length", "Params.pad11_length")
body15 = doc.addObject("PartDesign::Body", "Body014")

# Sketch on XY plane
sketch13 = body15.newObject("Sketcher::SketchObject", "Sketch012")
sketch13.AttachmentSupport = (doc.getObject("XY_Plane014"), [""])
sketch13.MapMode = "FlatFace"
sketch13.AttachmentOffset = App.Placement(V(0, 0, 2.4), App.Rotation())
sketch13.addGeometry(Part.LineSegment(V(106.380625, -14.507654, 0), V(109.72663, -32.507654, 0)), False)
sketch13.addGeometry(Part.LineSegment(V(109.72663, -32.507654, 0), V(114.380625, -32.507654, 0)), False)
sketch13.addGeometry(Part.LineSegment(V(114.380625, -32.507654, 0), V(114.380625, -14.507654, 0)), False)
sketch13.addGeometry(Part.LineSegment(V(114.380625, -14.507654, 0), V(106.380625, -14.507654, 0)), False)
sketch13.addConstraint(Sketcher.Constraint("Coincident", 0, 2, 1, 1))
sketch13.addConstraint(Sketcher.Constraint("Coincident", 1, 2, 2, 1))
sketch13.addConstraint(Sketcher.Constraint("Coincident", 2, 2, 3, 1))
sketch13.addConstraint(Sketcher.Constraint("Coincident", 3, 2, 0, 1))
sketch13.addConstraint(Sketcher.Constraint("Horizontal", 1))
sketch13.addConstraint(Sketcher.Constraint("Vertical", 2))
sketch13.addConstraint(Sketcher.Constraint("Horizontal", 3))
sketch13.addConstraint(Sketcher.Constraint("DistanceX", 3, 2, 3, 1, Q("8 mm")))
sketch13.addConstraint(Sketcher.Constraint("DistanceY", 2, 1, 2, 2, Q("18 mm")))
sketch13.addConstraint(Sketcher.Constraint("Distance", 0, Q("18.308352 mm")))
sketch13.addConstraint(Sketcher.Constraint("DistanceX", -1, 1, 0, 2, Q("109.72663 mm")))
sketch13.addConstraint(Sketcher.Constraint("DistanceY", 0, 2, -1, 1, Q("32.507654 mm")))
sketch13.setExpression("Constraints[7]", "Params.sketch13_width")
sketch13.setExpression("Constraints[8]", "Params.sketch13_height")
pad12 = body15.newObject("PartDesign::Pad", "Pad011")
pad12.Profile = sketch13
pad12.setExpression("Length", "Params.pad12_length")

doc.recompute()
